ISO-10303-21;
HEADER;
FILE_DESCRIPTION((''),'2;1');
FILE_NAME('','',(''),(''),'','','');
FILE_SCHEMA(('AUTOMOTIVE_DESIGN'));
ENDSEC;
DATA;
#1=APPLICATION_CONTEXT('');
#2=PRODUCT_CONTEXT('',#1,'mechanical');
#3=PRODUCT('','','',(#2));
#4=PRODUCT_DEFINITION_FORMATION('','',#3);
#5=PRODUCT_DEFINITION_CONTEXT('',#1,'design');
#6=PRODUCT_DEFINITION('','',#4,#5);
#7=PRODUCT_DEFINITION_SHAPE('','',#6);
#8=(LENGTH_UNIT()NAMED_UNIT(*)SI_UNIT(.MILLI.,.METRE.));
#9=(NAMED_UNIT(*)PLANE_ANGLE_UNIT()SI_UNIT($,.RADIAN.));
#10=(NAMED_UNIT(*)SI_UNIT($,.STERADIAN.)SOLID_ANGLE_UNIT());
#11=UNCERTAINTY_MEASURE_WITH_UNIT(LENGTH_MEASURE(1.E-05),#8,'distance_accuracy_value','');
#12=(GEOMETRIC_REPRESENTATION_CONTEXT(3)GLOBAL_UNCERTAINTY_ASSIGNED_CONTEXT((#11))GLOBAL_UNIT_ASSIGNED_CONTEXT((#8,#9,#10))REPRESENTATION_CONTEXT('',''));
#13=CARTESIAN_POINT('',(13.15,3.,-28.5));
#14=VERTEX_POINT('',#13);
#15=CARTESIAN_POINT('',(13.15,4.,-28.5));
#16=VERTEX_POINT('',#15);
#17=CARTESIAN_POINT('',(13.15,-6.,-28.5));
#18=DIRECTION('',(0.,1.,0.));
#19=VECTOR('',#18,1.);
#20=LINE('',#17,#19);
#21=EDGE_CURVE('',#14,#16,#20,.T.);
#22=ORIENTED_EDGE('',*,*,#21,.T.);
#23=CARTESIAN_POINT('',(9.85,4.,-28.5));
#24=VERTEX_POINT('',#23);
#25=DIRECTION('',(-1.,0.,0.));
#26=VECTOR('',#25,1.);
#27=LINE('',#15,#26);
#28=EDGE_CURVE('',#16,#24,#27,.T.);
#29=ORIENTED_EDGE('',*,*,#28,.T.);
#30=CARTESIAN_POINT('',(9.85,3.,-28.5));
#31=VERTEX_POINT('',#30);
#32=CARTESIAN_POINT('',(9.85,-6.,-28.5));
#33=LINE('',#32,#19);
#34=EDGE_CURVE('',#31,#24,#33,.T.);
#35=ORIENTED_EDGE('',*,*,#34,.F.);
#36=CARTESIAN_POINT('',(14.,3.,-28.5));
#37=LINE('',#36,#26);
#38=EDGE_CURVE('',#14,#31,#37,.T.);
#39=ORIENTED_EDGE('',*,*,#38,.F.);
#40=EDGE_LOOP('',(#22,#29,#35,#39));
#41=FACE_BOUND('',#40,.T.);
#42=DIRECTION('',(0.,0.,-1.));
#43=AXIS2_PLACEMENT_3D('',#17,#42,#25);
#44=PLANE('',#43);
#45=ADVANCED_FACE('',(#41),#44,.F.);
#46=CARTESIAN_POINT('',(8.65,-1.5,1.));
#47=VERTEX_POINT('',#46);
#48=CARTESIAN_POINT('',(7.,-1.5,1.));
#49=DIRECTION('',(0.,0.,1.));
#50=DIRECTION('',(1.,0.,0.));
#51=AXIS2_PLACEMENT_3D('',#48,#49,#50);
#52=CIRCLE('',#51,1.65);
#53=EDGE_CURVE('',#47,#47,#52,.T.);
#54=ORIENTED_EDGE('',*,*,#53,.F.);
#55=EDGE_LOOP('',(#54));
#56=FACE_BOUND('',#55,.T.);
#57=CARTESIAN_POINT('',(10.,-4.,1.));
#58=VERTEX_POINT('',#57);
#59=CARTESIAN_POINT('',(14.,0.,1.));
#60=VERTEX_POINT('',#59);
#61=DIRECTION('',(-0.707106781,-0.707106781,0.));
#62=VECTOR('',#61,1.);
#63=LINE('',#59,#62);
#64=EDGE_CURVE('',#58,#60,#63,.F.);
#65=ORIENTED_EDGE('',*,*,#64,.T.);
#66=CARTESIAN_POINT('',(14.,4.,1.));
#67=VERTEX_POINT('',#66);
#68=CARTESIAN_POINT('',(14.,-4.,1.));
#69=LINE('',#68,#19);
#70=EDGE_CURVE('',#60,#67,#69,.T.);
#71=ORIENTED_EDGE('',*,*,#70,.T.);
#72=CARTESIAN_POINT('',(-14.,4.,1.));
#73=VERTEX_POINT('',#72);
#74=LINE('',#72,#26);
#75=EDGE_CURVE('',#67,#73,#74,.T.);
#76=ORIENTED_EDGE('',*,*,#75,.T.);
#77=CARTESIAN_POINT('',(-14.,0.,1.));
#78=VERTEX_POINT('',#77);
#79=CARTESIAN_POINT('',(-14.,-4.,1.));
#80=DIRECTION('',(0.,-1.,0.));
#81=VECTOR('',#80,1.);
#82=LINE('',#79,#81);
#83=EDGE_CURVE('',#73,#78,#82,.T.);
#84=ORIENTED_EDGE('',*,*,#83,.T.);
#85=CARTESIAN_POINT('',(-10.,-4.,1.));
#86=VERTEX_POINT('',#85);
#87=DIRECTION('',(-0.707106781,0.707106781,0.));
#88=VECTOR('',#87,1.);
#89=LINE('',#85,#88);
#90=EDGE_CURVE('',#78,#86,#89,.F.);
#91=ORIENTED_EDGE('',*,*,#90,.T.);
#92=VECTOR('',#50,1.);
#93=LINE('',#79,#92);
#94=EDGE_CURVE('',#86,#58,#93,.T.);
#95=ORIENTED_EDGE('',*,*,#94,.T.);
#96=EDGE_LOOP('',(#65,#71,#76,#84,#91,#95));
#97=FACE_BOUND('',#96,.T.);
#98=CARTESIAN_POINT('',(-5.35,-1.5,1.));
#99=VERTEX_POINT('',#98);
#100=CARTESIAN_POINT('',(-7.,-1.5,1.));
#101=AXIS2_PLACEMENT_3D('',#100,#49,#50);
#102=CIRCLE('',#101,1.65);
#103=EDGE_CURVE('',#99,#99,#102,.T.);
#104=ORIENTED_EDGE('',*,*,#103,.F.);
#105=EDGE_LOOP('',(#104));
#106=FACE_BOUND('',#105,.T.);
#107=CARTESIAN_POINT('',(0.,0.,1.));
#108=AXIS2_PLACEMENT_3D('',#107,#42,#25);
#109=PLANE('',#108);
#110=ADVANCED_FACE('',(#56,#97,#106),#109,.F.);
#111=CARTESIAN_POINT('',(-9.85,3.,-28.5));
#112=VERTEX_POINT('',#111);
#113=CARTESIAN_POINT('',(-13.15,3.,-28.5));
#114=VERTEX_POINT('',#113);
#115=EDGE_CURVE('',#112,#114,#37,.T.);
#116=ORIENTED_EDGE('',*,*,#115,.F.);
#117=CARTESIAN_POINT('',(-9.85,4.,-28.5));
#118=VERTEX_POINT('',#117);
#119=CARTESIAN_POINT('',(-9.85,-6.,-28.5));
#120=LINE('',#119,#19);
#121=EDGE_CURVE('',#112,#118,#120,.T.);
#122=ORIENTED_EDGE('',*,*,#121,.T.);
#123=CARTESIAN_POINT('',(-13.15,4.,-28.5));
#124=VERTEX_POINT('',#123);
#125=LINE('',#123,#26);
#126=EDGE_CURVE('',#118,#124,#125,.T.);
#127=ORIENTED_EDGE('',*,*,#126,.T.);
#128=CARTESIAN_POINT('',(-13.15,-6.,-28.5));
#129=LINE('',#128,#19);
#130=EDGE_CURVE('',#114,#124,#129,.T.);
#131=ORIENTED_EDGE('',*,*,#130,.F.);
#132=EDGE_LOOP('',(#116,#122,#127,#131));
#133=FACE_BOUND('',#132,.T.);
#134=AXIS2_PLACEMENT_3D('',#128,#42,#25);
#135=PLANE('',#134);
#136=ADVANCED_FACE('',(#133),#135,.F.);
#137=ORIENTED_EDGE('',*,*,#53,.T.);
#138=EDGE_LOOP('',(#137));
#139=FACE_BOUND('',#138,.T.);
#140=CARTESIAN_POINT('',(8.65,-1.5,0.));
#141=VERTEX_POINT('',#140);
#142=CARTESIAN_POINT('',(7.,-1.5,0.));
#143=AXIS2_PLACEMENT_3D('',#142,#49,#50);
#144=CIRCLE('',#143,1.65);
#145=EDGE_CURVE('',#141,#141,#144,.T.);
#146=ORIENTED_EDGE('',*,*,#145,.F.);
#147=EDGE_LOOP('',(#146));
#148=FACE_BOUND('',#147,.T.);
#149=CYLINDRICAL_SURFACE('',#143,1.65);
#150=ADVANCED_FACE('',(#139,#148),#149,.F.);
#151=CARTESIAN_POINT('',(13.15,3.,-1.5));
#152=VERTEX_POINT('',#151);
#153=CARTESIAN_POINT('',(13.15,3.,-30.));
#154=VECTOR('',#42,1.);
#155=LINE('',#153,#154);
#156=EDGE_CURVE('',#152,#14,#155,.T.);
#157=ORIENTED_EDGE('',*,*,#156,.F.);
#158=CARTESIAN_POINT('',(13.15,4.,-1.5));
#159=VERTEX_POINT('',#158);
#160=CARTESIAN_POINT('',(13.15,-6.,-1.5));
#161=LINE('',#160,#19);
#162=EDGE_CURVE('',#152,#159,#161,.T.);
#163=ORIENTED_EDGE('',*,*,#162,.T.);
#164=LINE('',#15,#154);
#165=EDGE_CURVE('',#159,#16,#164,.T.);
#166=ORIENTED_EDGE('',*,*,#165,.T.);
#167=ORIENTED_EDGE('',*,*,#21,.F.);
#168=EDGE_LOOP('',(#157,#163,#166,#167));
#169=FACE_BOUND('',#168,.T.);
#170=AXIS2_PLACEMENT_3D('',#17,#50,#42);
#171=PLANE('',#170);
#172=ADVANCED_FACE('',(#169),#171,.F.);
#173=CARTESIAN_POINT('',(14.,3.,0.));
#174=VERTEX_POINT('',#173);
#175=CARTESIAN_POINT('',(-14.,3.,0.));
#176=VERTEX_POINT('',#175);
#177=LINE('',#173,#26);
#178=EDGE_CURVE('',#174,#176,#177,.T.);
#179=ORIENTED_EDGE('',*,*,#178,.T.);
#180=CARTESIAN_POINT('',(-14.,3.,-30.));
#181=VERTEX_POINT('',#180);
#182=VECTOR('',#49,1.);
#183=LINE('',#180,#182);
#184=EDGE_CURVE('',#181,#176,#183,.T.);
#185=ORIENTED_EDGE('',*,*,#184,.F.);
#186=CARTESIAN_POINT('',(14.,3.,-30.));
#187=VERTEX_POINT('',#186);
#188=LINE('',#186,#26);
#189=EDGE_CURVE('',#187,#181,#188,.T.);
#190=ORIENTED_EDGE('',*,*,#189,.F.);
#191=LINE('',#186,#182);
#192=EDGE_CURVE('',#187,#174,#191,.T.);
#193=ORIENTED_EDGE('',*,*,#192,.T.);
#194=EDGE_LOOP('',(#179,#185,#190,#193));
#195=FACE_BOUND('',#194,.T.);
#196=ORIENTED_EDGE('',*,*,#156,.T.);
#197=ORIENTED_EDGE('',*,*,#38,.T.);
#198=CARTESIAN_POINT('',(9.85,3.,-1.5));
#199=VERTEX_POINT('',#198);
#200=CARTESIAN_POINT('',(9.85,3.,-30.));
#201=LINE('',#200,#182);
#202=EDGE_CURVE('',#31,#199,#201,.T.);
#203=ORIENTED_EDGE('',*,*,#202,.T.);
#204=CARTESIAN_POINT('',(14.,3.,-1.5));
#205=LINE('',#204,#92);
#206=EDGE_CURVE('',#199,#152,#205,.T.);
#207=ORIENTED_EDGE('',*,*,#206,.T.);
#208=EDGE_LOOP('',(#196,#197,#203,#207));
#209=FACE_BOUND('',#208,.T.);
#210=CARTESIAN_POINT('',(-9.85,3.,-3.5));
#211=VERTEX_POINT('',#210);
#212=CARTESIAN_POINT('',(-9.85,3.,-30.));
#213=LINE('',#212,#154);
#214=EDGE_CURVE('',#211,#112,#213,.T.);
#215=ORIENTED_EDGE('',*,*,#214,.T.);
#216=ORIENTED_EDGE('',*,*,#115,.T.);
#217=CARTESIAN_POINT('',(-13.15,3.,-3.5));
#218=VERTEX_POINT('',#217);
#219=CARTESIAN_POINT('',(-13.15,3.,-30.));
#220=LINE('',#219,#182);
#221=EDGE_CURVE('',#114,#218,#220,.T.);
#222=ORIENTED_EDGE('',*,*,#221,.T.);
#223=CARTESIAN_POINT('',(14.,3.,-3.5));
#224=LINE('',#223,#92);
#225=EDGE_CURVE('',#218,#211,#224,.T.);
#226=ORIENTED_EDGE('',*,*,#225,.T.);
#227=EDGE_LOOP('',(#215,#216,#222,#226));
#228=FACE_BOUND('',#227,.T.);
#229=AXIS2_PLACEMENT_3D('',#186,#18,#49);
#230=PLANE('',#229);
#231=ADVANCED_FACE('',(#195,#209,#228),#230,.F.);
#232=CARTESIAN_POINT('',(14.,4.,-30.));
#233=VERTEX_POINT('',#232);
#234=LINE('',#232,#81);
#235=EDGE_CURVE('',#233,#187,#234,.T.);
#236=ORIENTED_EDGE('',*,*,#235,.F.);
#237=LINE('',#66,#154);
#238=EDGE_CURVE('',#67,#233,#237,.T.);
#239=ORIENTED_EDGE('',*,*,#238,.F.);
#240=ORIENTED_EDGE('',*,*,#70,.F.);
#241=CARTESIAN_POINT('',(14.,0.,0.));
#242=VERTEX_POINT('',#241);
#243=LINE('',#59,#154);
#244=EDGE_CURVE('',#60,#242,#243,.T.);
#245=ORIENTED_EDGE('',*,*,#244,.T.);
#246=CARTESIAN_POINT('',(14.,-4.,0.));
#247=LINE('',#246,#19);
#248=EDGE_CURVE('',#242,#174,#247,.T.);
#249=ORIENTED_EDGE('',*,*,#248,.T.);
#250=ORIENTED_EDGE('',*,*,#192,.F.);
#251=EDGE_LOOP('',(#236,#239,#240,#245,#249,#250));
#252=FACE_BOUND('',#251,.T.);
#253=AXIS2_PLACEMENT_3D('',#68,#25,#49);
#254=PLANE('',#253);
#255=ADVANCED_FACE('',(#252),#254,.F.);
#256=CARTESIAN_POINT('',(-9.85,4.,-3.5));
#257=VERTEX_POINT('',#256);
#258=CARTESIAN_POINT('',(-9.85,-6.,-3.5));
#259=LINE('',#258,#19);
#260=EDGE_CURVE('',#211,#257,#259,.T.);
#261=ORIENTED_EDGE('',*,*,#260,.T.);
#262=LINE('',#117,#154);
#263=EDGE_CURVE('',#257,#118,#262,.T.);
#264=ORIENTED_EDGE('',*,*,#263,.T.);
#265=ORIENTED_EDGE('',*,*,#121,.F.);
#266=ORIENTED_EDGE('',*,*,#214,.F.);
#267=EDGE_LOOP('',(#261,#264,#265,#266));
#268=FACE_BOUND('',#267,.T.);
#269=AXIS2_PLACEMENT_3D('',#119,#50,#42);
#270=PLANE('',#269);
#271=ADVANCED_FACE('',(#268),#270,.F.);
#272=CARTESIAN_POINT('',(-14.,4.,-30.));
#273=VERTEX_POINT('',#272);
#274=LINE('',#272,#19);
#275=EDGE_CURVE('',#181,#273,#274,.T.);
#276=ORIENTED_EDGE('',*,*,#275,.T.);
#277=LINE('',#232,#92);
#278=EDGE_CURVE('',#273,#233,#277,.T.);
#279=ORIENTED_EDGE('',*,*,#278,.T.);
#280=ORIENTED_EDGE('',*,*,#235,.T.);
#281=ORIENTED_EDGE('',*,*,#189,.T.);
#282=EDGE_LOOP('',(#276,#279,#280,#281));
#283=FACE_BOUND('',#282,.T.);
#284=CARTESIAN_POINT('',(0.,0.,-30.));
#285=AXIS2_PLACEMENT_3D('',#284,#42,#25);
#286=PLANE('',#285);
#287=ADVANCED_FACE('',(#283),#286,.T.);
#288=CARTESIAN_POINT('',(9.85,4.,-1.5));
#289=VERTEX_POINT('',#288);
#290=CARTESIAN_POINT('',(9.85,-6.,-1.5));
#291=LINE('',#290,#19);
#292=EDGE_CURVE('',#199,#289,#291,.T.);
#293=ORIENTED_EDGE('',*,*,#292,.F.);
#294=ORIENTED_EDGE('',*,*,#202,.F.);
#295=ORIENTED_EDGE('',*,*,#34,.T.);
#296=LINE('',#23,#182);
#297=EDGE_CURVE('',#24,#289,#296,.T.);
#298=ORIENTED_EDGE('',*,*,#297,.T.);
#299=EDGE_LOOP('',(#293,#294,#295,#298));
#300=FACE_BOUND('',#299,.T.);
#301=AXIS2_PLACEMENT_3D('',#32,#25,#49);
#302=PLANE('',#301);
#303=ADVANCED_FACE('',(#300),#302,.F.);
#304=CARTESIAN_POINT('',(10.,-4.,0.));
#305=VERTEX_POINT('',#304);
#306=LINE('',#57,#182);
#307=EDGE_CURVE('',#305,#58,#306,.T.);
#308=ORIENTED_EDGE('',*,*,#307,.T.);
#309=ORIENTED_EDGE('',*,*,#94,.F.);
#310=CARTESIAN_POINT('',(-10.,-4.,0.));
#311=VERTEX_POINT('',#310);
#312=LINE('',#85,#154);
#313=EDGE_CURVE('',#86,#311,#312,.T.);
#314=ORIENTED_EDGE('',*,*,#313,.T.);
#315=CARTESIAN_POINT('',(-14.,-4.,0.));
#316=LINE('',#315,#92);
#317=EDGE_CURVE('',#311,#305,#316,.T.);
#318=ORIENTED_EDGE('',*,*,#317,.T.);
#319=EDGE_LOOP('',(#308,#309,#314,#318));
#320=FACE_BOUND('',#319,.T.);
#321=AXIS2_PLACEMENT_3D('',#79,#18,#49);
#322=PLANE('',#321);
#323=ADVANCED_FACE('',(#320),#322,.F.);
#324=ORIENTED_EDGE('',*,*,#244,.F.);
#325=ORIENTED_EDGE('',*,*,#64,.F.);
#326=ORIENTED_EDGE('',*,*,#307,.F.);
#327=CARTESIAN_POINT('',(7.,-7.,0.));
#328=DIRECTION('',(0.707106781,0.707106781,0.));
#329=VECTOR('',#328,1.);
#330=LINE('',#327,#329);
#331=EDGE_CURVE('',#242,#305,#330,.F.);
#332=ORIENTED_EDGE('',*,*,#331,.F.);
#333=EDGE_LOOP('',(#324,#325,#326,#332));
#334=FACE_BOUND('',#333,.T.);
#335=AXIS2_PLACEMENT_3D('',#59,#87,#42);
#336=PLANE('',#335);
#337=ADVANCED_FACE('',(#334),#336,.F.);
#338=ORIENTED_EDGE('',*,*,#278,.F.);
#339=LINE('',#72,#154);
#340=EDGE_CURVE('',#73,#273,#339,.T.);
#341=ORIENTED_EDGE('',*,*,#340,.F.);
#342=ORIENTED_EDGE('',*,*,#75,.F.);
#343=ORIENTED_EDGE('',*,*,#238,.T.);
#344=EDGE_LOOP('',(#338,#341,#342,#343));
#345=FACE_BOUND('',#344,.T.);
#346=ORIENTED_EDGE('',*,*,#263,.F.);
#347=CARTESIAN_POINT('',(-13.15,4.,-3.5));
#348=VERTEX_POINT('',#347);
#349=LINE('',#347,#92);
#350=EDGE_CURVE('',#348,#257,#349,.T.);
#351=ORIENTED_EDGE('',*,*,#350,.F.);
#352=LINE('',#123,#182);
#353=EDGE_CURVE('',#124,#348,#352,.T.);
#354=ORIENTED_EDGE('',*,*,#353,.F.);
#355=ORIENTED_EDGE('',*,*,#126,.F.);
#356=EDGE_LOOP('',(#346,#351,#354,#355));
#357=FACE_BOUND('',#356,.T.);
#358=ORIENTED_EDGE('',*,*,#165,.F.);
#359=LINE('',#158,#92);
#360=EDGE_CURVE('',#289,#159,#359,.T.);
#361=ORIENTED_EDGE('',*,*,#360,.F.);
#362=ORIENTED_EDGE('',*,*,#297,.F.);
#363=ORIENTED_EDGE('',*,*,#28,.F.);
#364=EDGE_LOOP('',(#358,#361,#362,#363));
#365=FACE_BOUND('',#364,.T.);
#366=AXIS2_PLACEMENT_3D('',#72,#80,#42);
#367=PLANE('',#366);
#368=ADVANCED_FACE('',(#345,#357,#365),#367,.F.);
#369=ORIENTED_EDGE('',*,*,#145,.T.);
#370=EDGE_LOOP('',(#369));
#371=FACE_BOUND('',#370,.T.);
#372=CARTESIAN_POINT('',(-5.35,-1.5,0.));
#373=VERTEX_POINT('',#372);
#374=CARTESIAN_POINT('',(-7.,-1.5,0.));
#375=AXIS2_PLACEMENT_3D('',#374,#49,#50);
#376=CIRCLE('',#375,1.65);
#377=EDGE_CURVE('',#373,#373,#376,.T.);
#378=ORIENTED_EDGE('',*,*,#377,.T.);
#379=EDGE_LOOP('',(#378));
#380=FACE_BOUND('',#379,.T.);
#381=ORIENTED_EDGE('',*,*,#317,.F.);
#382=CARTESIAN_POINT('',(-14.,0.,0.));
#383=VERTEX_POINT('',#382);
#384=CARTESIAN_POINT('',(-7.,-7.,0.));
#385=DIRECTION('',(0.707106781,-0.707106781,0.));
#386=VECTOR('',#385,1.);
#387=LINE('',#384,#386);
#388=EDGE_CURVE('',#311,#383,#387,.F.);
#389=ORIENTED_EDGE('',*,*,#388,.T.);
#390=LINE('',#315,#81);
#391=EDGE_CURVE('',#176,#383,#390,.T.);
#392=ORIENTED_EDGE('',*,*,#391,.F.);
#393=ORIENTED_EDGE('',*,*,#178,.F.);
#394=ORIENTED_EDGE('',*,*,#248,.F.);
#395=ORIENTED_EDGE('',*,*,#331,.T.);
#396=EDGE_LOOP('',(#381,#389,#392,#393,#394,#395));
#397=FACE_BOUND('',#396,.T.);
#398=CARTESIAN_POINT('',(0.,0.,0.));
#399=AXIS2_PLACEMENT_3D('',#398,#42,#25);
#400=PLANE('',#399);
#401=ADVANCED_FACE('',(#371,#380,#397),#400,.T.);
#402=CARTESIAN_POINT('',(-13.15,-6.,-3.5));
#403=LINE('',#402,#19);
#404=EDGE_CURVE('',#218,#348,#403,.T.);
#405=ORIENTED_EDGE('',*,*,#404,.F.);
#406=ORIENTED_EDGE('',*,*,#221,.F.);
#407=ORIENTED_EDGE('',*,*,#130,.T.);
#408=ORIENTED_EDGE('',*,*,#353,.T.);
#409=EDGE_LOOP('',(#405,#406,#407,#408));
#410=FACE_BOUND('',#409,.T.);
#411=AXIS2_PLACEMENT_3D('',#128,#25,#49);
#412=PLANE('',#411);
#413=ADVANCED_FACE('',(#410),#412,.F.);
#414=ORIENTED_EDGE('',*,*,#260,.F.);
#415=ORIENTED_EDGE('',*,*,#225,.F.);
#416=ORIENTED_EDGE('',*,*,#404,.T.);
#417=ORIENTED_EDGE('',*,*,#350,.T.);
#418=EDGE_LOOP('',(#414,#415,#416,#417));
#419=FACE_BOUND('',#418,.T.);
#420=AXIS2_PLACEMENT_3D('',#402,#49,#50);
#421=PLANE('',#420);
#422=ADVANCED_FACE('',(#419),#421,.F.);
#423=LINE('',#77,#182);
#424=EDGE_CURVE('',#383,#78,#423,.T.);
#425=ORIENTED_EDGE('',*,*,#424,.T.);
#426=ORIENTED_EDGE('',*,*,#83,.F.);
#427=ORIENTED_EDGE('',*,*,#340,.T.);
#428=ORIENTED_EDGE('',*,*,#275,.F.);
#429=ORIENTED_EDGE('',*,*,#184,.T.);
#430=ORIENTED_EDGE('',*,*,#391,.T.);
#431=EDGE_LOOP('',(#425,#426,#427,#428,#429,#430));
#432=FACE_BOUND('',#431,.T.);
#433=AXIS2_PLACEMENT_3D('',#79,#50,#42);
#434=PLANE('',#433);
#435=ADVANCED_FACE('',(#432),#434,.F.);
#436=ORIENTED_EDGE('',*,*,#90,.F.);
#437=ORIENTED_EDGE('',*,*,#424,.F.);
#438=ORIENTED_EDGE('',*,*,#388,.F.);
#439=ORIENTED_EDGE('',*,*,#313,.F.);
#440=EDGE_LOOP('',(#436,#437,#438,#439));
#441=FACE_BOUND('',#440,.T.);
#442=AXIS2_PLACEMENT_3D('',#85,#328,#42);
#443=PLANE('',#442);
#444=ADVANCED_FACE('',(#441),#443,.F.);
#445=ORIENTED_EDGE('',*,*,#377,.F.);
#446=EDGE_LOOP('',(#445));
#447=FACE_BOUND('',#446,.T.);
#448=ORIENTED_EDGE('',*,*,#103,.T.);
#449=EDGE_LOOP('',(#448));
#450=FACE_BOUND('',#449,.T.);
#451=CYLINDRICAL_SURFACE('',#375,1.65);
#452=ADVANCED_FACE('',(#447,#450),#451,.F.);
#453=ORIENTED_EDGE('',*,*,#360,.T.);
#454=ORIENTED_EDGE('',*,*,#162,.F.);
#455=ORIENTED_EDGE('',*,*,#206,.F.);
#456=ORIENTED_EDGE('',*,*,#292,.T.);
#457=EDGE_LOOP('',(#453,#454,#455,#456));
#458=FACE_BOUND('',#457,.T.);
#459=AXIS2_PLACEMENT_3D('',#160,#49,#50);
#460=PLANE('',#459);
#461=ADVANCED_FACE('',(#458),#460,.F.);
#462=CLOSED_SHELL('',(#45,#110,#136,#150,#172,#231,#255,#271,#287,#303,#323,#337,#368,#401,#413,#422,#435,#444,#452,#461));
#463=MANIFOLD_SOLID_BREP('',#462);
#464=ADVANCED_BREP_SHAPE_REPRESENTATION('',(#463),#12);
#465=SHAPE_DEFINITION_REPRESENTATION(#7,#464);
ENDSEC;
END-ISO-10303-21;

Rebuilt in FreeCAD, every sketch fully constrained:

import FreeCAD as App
import Part
import Sketcher
from FreeCAD import Vector


def edges_at(feature, points):
    """Names of the edges that pass closest to the given points."""
    edges = feature.Shape.Edges
    near = lambda p: min(range(len(edges)), key=lambda i: edges[i].distToShape(Part.Vertex(*p))[0])
    return sorted({f"Edge{near(p) + 1}" for p in points})


def add_polygon(sketch, points):
    """Adds a closed chain of lines whose ends are joined by coincident constraints."""
    first, n = sketch.GeometryCount, len(points)
    for a, b in zip(points, points[1:] + points[:1]):
        sketch.addGeometry(Part.LineSegment(App.Vector(*a, 0), App.Vector(*b, 0)), False)
    for i in range(n):
        sketch.addConstraint(Sketcher.Constraint("Coincident", first + i, 2, first + (i + 1) % n, 1))

doc = App.newDocument("Part")
body = doc.addObject("PartDesign::Body", "Body")

sketch1 = doc.addObject("Sketcher::SketchObject", "Sketch")
body.addObject(sketch1)
sketch1.AttachmentSupport = (doc.XY_Plane, [""])
sketch1.MapMode = "FlatFace"
add_polygon(sketch1, [(-14, 4), (-14, -4), (14, -4), (14, 4)])
sketch1.addConstraint([
    Sketcher.Constraint("Vertical", 0),
    Sketcher.Constraint("Horizontal", 1),
    Sketcher.Constraint("Vertical", 2),
    Sketcher.Constraint("Horizontal", 3),
    Sketcher.Constraint("Symmetric", 0, 2, 2, 2, -1, 1),
    Sketcher.Constraint("DistanceX", 1, 1, 1, 2, 28.0),
    Sketcher.Constraint("DistanceY", 0, 2, 0, 1, 8.0),
])
pad1 = doc.addObject("PartDesign::Pad", "Pad")
body.addObject(pad1)
pad1.Profile = sketch1
pad1.Length = 1

sketch2 = doc.addObject("Sketcher::SketchObject", "Sketch001")
body.addObject(sketch2)
sketch2.AttachmentSupport = (doc.XY_Plane, [""])
sketch2.MapMode = "FlatFace"
add_polygon(sketch2, [(14, 4), (14, 3), (-14, 3), (-14, 4)])
sketch2.addConstraint([
    Sketcher.Constraint("Vertical", 0),
    Sketcher.Constraint("Horizontal", 1),
    Sketcher.Constraint("Vertical", 2),
    Sketcher.Constraint("Horizontal", 3),
    Sketcher.Constraint("DistanceX", 1, 2, 1, 1, 28.0),
    Sketcher.Constraint("DistanceY", 0, 2, 0, 1, 1.0),
    Sketcher.Constraint("DistanceX", -1, 1, 0, 2, 14.0),
    Sketcher.Constraint("DistanceY", -1, 1, 0, 2, 3.0),
])
pad2 = doc.addObject("PartDesign::Pad", "Pad001")
body.addObject(pad2)
pad2.Profile = sketch2
pad2.Length = 30
pad2.Reversed = True

sketch3 = doc.addObject("Sketcher::SketchObject", "Sketch002")
body.addObject(sketch3)
sketch3.AttachmentSupport = (doc.XY_Plane, [""])
sketch3.MapMode = "FlatFace"
sketch3.AttachmentOffset = App.Placement(Vector(0, 0, 1), App.Rotation())
sketch3.addGeometry([
    Part.Circle(Vector(-7, -1.5, 0), Vector(0, 0, 1), 1.65),
    Part.Circle(Vector(7, -1.5, 0), Vector(0, 0, 1), 1.65),
], False)
sketch3.addConstraint([
    Sketcher.Constraint("Equal", 0, 1),
    Sketcher.Constraint("Symmetric", 0, 3, 1, 3, -2),
    Sketcher.Constraint("Diameter", 0, 3.3),
    Sketcher.Constraint("DistanceX", 0, 3, -1, 1, 7.0),
    Sketcher.Constraint("DistanceY", 0, 3, -1, 1, 1.5),
])
pocket1 = doc.addObject("PartDesign::Pocket", "Pocket")
body.addObject(pocket1)
pocket1.Profile = sketch3
pocket1.Length = 1
doc.recompute()

chamfer = doc.addObject("PartDesign::Chamfer", "Chamfer")
body.addObject(chamfer)
chamfer.Base = (pocket1, edges_at(pocket1, [(14, -4, 0.5), (-14, -4, 0.5)]))
chamfer.Size = 4

sketch4 = doc.addObject("Sketcher::SketchObject", "Sketch003")
body.addObject(sketch4)
sketch4.AttachmentSupport = (doc.XZ_Plane, [""])
sketch4.MapMode = "FlatFace"
sketch4.AttachmentOffset = App.Placement(Vector(0, 0, -4), App.Rotation())
add_polygon(sketch4, [(9.85, -28.5), (9.85, -1.5), (13.15, -1.5), (13.15, -28.5)])
add_polygon(sketch4, [(-13.15, -28.5), (-13.15, -3.5), (-9.85, -3.5), (-9.85, -28.5)])
sketch4.addConstraint([
    Sketcher.Constraint("Vertical", 0),
    Sketcher.Constraint("Horizontal", 1),
    Sketcher.Constraint("Vertical", 2),
    Sketcher.Constraint("Horizontal", 3),
    Sketcher.Constraint("Vertical", 4),
    Sketcher.Constraint("Horizontal", 5),
    Sketcher.Constraint("Vertical", 6),
    Sketcher.Constraint("Horizontal", 7),
    Sketcher.Constraint("Symmetric", 3, 2, 6, 2, -2),
    Sketcher.Constraint("Equal", 3, 5),
    Sketcher.Constraint("DistanceY", 0, 1, 0, 2, 27.0),
    Sketcher.Constraint("DistanceY", 4, 1, 4, 2, 25.0),
    Sketcher.Constraint("DistanceX", 1, 1, 1, 2, 3.3),
    Sketcher.Constraint("DistanceX", 4, 2, 0, 2, 23.0),
    Sketcher.Constraint("DistanceY", 0, 2, -1, 1, 1.5),
])
pocket2 = doc.addObject("PartDesign::Pocket", "Pocket001")
body.addObject(pocket2)
pocket2.Profile = sketch4
pocket2.Length = 10
pocket2.Reversed = True

doc.recompute()
